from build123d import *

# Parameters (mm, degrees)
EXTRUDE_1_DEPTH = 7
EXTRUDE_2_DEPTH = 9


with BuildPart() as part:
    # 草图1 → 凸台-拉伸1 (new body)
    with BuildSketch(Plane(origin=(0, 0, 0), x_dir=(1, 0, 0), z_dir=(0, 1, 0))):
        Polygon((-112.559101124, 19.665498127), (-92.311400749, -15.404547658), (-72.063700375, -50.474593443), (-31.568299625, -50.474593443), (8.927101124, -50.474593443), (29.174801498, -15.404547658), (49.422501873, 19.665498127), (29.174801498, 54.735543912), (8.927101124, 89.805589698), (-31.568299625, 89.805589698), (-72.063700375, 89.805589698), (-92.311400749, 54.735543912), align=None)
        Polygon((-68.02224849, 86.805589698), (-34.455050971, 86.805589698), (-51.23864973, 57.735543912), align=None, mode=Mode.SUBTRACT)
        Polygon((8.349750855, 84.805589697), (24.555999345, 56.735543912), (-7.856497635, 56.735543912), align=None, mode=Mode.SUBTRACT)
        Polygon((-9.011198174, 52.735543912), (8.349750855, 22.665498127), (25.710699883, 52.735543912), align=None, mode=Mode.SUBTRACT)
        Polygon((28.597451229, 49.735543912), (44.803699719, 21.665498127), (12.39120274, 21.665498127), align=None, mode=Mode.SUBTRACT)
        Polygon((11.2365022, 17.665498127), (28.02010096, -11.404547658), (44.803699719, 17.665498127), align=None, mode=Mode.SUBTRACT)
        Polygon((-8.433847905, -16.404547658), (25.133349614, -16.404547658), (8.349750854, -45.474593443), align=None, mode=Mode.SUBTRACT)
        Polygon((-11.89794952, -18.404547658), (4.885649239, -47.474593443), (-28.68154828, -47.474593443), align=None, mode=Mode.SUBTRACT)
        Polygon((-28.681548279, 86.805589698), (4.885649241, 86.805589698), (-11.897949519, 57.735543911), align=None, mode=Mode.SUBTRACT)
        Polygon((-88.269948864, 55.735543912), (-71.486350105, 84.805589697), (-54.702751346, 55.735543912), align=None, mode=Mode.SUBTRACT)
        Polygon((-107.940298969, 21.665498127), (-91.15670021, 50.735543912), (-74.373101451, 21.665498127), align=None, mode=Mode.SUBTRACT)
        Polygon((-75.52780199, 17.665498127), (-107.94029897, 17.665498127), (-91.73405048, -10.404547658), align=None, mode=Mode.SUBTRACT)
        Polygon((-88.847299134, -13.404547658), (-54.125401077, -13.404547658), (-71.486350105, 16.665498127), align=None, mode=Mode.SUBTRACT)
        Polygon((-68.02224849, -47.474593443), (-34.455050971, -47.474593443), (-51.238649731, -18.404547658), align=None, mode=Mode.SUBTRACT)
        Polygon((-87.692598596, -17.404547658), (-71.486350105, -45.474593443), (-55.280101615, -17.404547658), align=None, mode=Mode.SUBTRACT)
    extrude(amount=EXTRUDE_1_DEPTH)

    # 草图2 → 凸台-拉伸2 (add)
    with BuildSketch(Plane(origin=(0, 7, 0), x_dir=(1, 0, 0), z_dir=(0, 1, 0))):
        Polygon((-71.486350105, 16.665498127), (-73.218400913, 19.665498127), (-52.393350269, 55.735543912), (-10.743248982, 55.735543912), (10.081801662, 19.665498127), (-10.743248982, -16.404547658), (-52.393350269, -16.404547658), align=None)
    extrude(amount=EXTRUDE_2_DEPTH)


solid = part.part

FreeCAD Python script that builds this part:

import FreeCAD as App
import Part
import Sketcher

V = App.Vector
Q = App.Units.Quantity

doc = App.newDocument("Part")
body = doc.addObject("PartDesign::Body", "Body")

# Sketch on XZ plane
sketch1 = doc.addObject("Sketcher::SketchObject", "Sketch")
body.addObject(sketch1)
sketch1.AttachmentSupport = (doc.XZ_Plane, [""])
sketch1.MapMode = "FlatFace"
sketch1.addGeometry([
    Part.LineSegment(V(-112.559101, -19.665498, 0), V(-92.311401, 15.404548, 0)),  # 0
    Part.LineSegment(V(-92.311401, 15.404548, 0), V(-72.0637, 50.474593, 0)),  # 1
    Part.LineSegment(V(-72.0637, 50.474593, 0), V(8.927101, 50.474593, 0)),  # 2
    Part.LineSegment(V(8.927101, 50.474593, 0), V(29.174801, 15.404548, 0)),  # 3
    Part.LineSegment(V(29.174801, 15.404548, 0), V(49.422502, -19.665498, 0)),  # 4
    Part.LineSegment(V(49.422502, -19.665498, 0), V(29.174801, -54.735544, 0)),  # 5
    Part.LineSegment(V(29.174801, -54.735544, 0), V(8.927101, -89.80559, 0)),  # 6
    Part.LineSegment(V(8.927101, -89.80559, 0), V(-72.0637, -89.80559, 0)),  # 7
    Part.LineSegment(V(-72.0637, -89.80559, 0), V(-92.311401, -54.735544, 0)),  # 8
    Part.LineSegment(V(-92.311401, -54.735544, 0), V(-112.559101, -19.665498, 0)),  # 9
    Part.LineSegment(V(-71.48635, 45.474593, 0), V(-87.692599, 17.404548, 0)),  # 10
    Part.LineSegment(V(-87.692599, 17.404548, 0), V(-55.280102, 17.404548, 0)),  # 11
    Part.LineSegment(V(-55.280102, 17.404548, 0), V(-71.48635, 45.474593, 0)),  # 12
    Part.LineSegment(V(-34.455051, 47.474593, 0), V(-68.022248, 47.474593, 0)),  # 13
    Part.LineSegment(V(-68.022248, 47.474593, 0), V(-51.23865, 18.404548, 0)),  # 14
    Part.LineSegment(V(-51.23865, 18.404548, 0), V(-34.455051, 47.474593, 0)),  # 15
    Part.LineSegment(V(-54.125401, 13.404548, 0), V(-88.847299, 13.404548, 0)),  # 16
    Part.LineSegment(V(-88.847299, 13.404548, 0), V(-71.48635, -16.665498, 0)),  # 17
    Part.LineSegment(V(-71.48635, -16.665498, 0), V(-54.125401, 13.404548, 0)),  # 18
    Part.LineSegment(V(-107.940299, -17.665498, 0), V(-75.527802, -17.665498, 0)),  # 19
    Part.LineSegment(V(-75.527802, -17.665498, 0), V(-91.73405, 10.404548, 0)),  # 20
    Part.LineSegment(V(-91.73405, 10.404548, 0), V(-107.940299, -17.665498, 0)),  # 21
    Part.LineSegment(V(-28.681548, 47.474593, 0), V(-11.89795, 18.404548, 0)),  # 22
    Part.LineSegment(V(-11.89795, 18.404548, 0), V(4.885649, 47.474593, 0)),  # 23
    Part.LineSegment(V(4.885649, 47.474593, 0), V(-28.681548, 47.474593, 0)),  # 24
    Part.LineSegment(V(8.349751, 45.474593, 0), V(-8.433848, 16.404548, 0)),  # 25
    Part.LineSegment(V(-8.433848, 16.404548, 0), V(25.13335, 16.404548, 0)),  # 26
    Part.LineSegment(V(25.13335, 16.404548, 0), V(8.349751, 45.474593, 0)),  # 27
    Part.LineSegment(V(28.020101, 11.404548, 0), V(11.236502, -17.665498, 0)),  # 28
    Part.LineSegment(V(11.236502, -17.665498, 0), V(44.8037, -17.665498, 0)),  # 29
    Part.LineSegment(V(44.8037, -17.665498, 0), V(28.020101, 11.404548, 0)),  # 30
    Part.LineSegment(V(-74.373101, -21.665498, 0), V(-107.940299, -21.665498, 0)),  # 31
    Part.LineSegment(V(-107.940299, -21.665498, 0), V(-91.1567, -50.735544, 0)),  # 32
    Part.LineSegment(V(-91.1567, -50.735544, 0), V(-74.373101, -21.665498, 0)),  # 33
    Part.LineSegment(V(-54.702751, -55.735544, 0), V(-88.269949, -55.735544, 0)),  # 34
    Part.LineSegment(V(-88.269949, -55.735544, 0), V(-71.48635, -84.80559, 0)),  # 35
    Part.LineSegment(V(-71.48635, -84.80559, 0), V(-54.702751, -55.735544, 0)),  # 36
    Part.LineSegment(V(-51.23865, -57.735544, 0), V(-68.022248, -86.80559, 0)),  # 37
    Part.LineSegment(V(-68.022248, -86.80559, 0), V(-34.455051, -86.80559, 0)),  # 38
    Part.LineSegment(V(-34.455051, -86.80559, 0), V(-51.23865, -57.735544, 0)),  # 39
    Part.LineSegment(V(12.391203, -21.665498, 0), V(28.597451, -49.735544, 0)),  # 40
    Part.LineSegment(V(28.597451, -49.735544, 0), V(44.8037, -21.665498, 0)),  # 41
    Part.LineSegment(V(44.8037, -21.665498, 0), V(12.391203, -21.665498, 0)),  # 42
    Part.LineSegment(V(8.349751, -22.665498, 0), V(-9.011198, -52.735544, 0)),  # 43
    Part.LineSegment(V(-9.011198, -52.735544, 0), V(25.7107, -52.735544, 0)),  # 44
    Part.LineSegment(V(25.7107, -52.735544, 0), V(8.349751, -22.665498, 0)),  # 45
    Part.LineSegment(V(-11.89795, -57.735544, 0), V(-28.681548, -86.80559, 0)),  # 46
    Part.LineSegment(V(-28.681548, -86.80559, 0), V(4.885649, -86.80559, 0)),  # 47
    Part.LineSegment(V(4.885649, -86.80559, 0), V(-11.89795, -57.735544, 0)),  # 48
    Part.LineSegment(V(-7.856498, -56.735544, 0), V(8.349751, -84.80559, 0)),  # 49
    Part.LineSegment(V(8.349751, -84.80559, 0), V(24.555999, -56.735544, 0)),  # 50
    Part.LineSegment(V(24.555999, -56.735544, 0), V(-7.856498, -56.735544, 0)),  # 51
], False)
sketch1.addConstraint([
    Sketcher.Constraint("Coincident", 0, 2, 1, 1),
    Sketcher.Constraint("Coincident", 1, 2, 2, 1),
    Sketcher.Constraint("Coincident", 2, 2, 3, 1),
    Sketcher.Constraint("Coincident", 3, 2, 4, 1),
    Sketcher.Constraint("Coincident", 4, 2, 5, 1),
    Sketcher.Constraint("Coincident", 5, 2, 6, 1),
    Sketcher.Constraint("Coincident", 6, 2, 7, 1),
    Sketcher.Constraint("Coincident", 7, 2, 8, 1),
    Sketcher.Constraint("Coincident", 8, 2, 9, 1),
    Sketcher.Constraint("Coincident", 9, 2, 0, 1),
    Sketcher.Constraint("Coincident", 10, 2, 11, 1),
    Sketcher.Constraint("Coincident", 11, 2, 12, 1),
    Sketcher.Constraint("Coincident", 12, 2, 10, 1),
    Sketcher.Constraint("Coincident", 13, 2, 14, 1),
    Sketcher.Constraint("Coincident", 14, 2, 15, 1),
    Sketcher.Constraint("Coincident", 15, 2, 13, 1),
    Sketcher.Constraint("Coincident", 16, 2, 17, 1),
    Sketcher.Constraint("Coincident", 17, 2, 18, 1),
    Sketcher.Constraint("Coincident", 18, 2, 16, 1),
    Sketcher.Constraint("Coincident", 19, 2, 20, 1),
    Sketcher.Constraint("Coincident", 20, 2, 21, 1),
    Sketcher.Constraint("Coincident", 21, 2, 19, 1),
    Sketcher.Constraint("Coincident", 22, 2, 23, 1),
    Sketcher.Constraint("Coincident", 23, 2, 24, 1),
    Sketcher.Constraint("Coincident", 24, 2, 22, 1),
    Sketcher.Constraint("Coincident", 25, 2, 26, 1),
    Sketcher.Constraint("Coincident", 26, 2, 27, 1),
    Sketcher.Constraint("Coincident", 27, 2, 25, 1),
    Sketcher.Constraint("Coincident", 28, 2, 29, 1),
    Sketcher.Constraint("Coincident", 29, 2, 30, 1),
    Sketcher.Constraint("Coincident", 30, 2, 28, 1),
    Sketcher.Constraint("Coincident", 31, 2, 32, 1),
    Sketcher.Constraint("Coincident", 32, 2, 33, 1),
    Sketcher.Constraint("Coincident", 33, 2, 31, 1),
    Sketcher.Constraint("Coincident", 34, 2, 35, 1),
    Sketcher.Constraint("Coincident", 35, 2, 36, 1),
    Sketcher.Constraint("Coincident", 36, 2, 34, 1),
    Sketcher.Constraint("Coincident", 37, 2, 38, 1),
    Sketcher.Constraint("Coincident", 38, 2, 39, 1),
    Sketcher.Constraint("Coincident", 39, 2, 37, 1),
    Sketcher.Constraint("Coincident", 40, 2, 41, 1),
    Sketcher.Constraint("Coincident", 41, 2, 42, 1),
    Sketcher.Constraint("Coincident", 42, 2, 40, 1),
    Sketcher.Constraint("Coincident", 43, 2, 44, 1),
    Sketcher.Constraint("Coincident", 44, 2, 45, 1),
    Sketcher.Constraint("Coincident", 45, 2, 43, 1),
    Sketcher.Constraint("Coincident", 46, 2, 47, 1),
    Sketcher.Constraint("Coincident", 47, 2, 48, 1),
    Sketcher.Constraint("Coincident", 48, 2, 46, 1),
    Sketcher.Constraint("Coincident", 49, 2, 50, 1),
    Sketcher.Constraint("Coincident", 50, 2, 51, 1),
    Sketcher.Constraint("Coincident", 51, 2, 49, 1),
    Sketcher.Constraint("Horizontal", 2),
    Sketcher.Constraint("Horizontal", 7),
    Sketcher.Constraint("Horizontal", 11),
    Sketcher.Constraint("Horizontal", 13),
    Sketcher.Constraint("Horizontal", 16),
    Sketcher.Constraint("Horizontal", 19),
    Sketcher.Constraint("Horizontal", 24),
    Sketcher.Constraint("Horizontal", 26),
    Sketcher.Constraint("Horizontal", 29),
    Sketcher.Constraint("Horizontal", 31),
    Sketcher.Constraint("Horizontal", 34),
    Sketcher.Constraint("Horizontal", 38),
    Sketcher.Constraint("Horizontal", 42),
    Sketcher.Constraint("Horizontal", 44),
    Sketcher.Constraint("Horizontal", 47),
    Sketcher.Constraint("Horizontal", 51),
    Sketcher.Constraint("Parallel", 0, 1),
    Sketcher.Constraint("Parallel", 3, 4),
    Sketcher.Constraint("Parallel", 1, 5),
    Sketcher.Constraint("Parallel", 5, 6),
    Sketcher.Constraint("Parallel", 4, 8),
    Sketcher.Constraint("Parallel", 8, 9),
    Sketcher.Constraint("Parallel", 6, 10),
    Sketcher.Constraint("Parallel", 9, 12),
    Sketcher.Constraint("Parallel", 12, 14),
    Sketcher.Constraint("Parallel", 10, 15),
    Sketcher.Constraint("Parallel", 14, 17),
    Sketcher.Constraint("Parallel", 15, 18),
    Sketcher.Constraint("Parallel", 17, 20),
    Sketcher.Constraint("Parallel", 18, 21),
    Sketcher.Constraint("Parallel", 20, 22),
    Sketcher.Constraint("Parallel", 21, 23),
    Sketcher.Constraint("Parallel", 23, 25),
    Sketcher.Constraint("Parallel", 22, 27),
    Sketcher.Constraint("Parallel", 25, 28),
    Sketcher.Constraint("Parallel", 27, 30),
    Sketcher.Constraint("Parallel", 30, 32),
    Sketcher.Constraint("Parallel", 28, 33),
    Sketcher.Constraint("Parallel", 32, 35),
    Sketcher.Constraint("Parallel", 33, 36),
    Sketcher.Constraint("Parallel", 36, 37),
    Sketcher.Constraint("Parallel", 35, 39),
    Sketcher.Constraint("Parallel", 39, 40),
    Sketcher.Constraint("Parallel", 37, 41),
    Sketcher.Constraint("Parallel", 41, 43),
    Sketcher.Constraint("Parallel", 40, 45),
    Sketcher.Constraint("Parallel", 43, 46),
    Sketcher.Constraint("Parallel", 45, 48),
    Sketcher.Constraint("Parallel", 48, 49),
    Sketcher.Constraint("Parallel", 46, 50),
    Sketcher.Constraint("Horizontal", 0, 2, 3, 2),
    Sketcher.Constraint("Horizontal", 5, 2, 8, 2),
    Sketcher.Constraint("Horizontal", 4, 2, 9, 2),
    Sketcher.Constraint("Horizontal", 14, 2, 22, 2),
    Sketcher.Constraint("Horizontal", 15, 2, 23, 2),
    Sketcher.Constraint("Horizontal", 12, 2, 27, 2),
    Sketcher.Constraint("Horizontal", 21, 2, 28, 2),
    Sketcher.Constraint("Horizontal", 33, 2, 41, 2),
    Sketcher.Constraint("Horizontal", 38, 2, 46, 2),
    Sketcher.Constraint("Horizontal", 39, 2, 48, 2),
    Sketcher.Constraint("Horizontal", 35, 2, 49, 2),
    Sketcher.Constraint("Vertical", 3, 2, 5, 2),
    Sketcher.Constraint("Vertical", 2, 2, 6, 2),
    Sketcher.Constraint("Vertical", 1, 2, 7, 2),
    Sketcher.Constraint("Vertical", 12, 2, 17, 2),
    Sketcher.Constraint("Vertical", 21, 2, 31, 2),
    Sketcher.Constraint("Vertical", 17, 2, 35, 2),
    Sketcher.Constraint("Vertical", 13, 2, 37, 2),
    Sketcher.Constraint("Vertical", 15, 2, 38, 2),
    Sketcher.Constraint("Vertical", 29, 2, 41, 2),
    Sketcher.Constraint("Vertical", 27, 2, 45, 2),
    Sketcher.Constraint("Vertical", 24, 2, 46, 2),
    Sketcher.Constraint("Vertical", 45, 2, 49, 2),
    Sketcher.Constraint("Equal", 11, 19),
    Sketcher.Constraint("Equal", 24, 26),
    Sketcher.Constraint("Equal", 26, 29),
    Sketcher.Constraint("Equal", 29, 31),
    Sketcher.Constraint("Equal", 31, 34),
    Sketcher.Constraint("Equal", 19, 42),
    Sketcher.Constraint("Equal", 16, 44),
    Sketcher.Constraint("Equal", 42, 51),
    Sketcher.Constraint("Equal", 0, 1),
    Sketcher.Constraint("Angle", 0, Q("60 deg")),
    Sketcher.Constraint("DistanceY", 0, 2, 10, 2, Q("2 mm")),
    Sketcher.Constraint("DistanceY", 12, 2, 1, 2, Q("5 mm")),
    Sketcher.Constraint("DistanceY", 12, 2, 13, 2, Q("2 mm")),
    Sketcher.Constraint("DistanceY", 11, 2, 14, 2, Q("1 mm")),
    Sketcher.Constraint("DistanceY", 16, 2, 0, 2, Q("2 mm")),
    Sketcher.Constraint("DistanceY", 19, 2, 17, 2, Q("1 mm")),
    Sketcher.Constraint("DistanceY", 9, 2, 19, 2, Q("2 mm")),
    Sketcher.Constraint("DistanceY", 31, 2, 21, 2, Q("4 mm")),
    Sketcher.Constraint("DistanceY", 34, 2, 8, 2, Q("1 mm")),
    Sketcher.Constraint("DistanceY", 37, 2, 35, 2, Q("2 mm")),
    Sketcher.Constraint("DistanceY", 43, 2, 40, 2, Q("3 mm")),
    Sketcher.Constraint("DistanceX", 2, 1, 2, 2, Q("80.990801 mm")),
    Sketcher.Constraint("DistanceX", 16, 2, 16, 1, Q("34.721898 mm")),
    Sketcher.Constraint("DistanceX", -1, 1, 50, 2, Q("24.555999 mm")),
    Sketcher.Constraint("DistanceX", 9, 2, 11, 2, Q("57.279 mm")),
    Sketcher.Constraint("DistanceX", 21, 2, 16, 2, Q("19.093 mm")),
    Sketcher.Constraint("DistanceX", 28, 2, 4, 2, Q("38.186 mm")),
    Sketcher.Constraint("DistanceX", 43, 2, 5, 2, Q("38.186 mm")),
    Sketcher.Constraint("DistanceY", 4, 2, -1, 1, Q("19.665498 mm")),
    Sketcher.Constraint("DistanceX", 12, 2, 13, 2, Q("3.464102 mm")),
    Sketcher.Constraint("DistanceX", 15, 2, 22, 2, Q("22.557101 mm")),
])
pad1 = doc.addObject("PartDesign::Pad", "Pad")
body.addObject(pad1)
pad1.Profile = sketch1
pad1.Length = 7
pad1.Reversed = True

# Sketch on XZ plane
sketch2 = doc.addObject("Sketcher::SketchObject", "Sketch001")
body.addObject(sketch2)
sketch2.AttachmentSupport = (doc.XZ_Plane, [""])
sketch2.MapMode = "FlatFace"
sketch2.AttachmentOffset = App.Placement(V(0, 0, -7), App.Rotation())
sketch2.addGeometry([
    Part.LineSegment(V(-73.218401, -19.665498, 0), V(-71.48635, -16.665498, 0)),  # 0
    Part.LineSegment(V(-71.48635, -16.665498, 0), V(-52.39335, 16.404548, 0)),  # 1
    Part.LineSegment(V(-52.39335, 16.404548, 0), V(-10.743249, 16.404548, 0)),  # 2
    Part.LineSegment(V(-10.743249, 16.404548, 0), V(10.081802, -19.665498, 0)),  # 3
    Part.LineSegment(V(10.081802, -19.665498, 0), V(-10.743249, -55.735544, 0)),  # 4
    Part.LineSegment(V(-10.743249, -55.735544, 0), V(-52.39335, -55.735544, 0)),  # 5
    Part.LineSegment(V(-52.39335, -55.735544, 0), V(-73.218401, -19.665498, 0)),  # 6
], False)
sketch2.addConstraint([
    Sketcher.Constraint("Coincident", 0, 2, 1, 1),
    Sketcher.Constraint("Coincident", 1, 2, 2, 1),
    Sketcher.Constraint("Coincident", 2, 2, 3, 1),
    Sketcher.Constraint("Coincident", 3, 2, 4, 1),
    Sketcher.Constraint("Coincident", 4, 2, 5, 1),
    Sketcher.Constraint("Coincident", 5, 2, 6, 1),
    Sketcher.Constraint("Coincident", 6, 2, 0, 1),
    Sketcher.Constraint("Horizontal", 2),
    Sketcher.Constraint("Horizontal", 5),
    Sketcher.Constraint("Parallel", 0, 1),
    Sketcher.Constraint("Parallel", 1, 4),
    Sketcher.Constraint("Parallel", 3, 6),
    Sketcher.Constraint("Horizontal", 3, 2, 6, 2),
    Sketcher.Constraint("Vertical", 2, 2, 4, 2),
    Sketcher.Constraint("Vertical", 1, 2, 5, 2),
    Sketcher.Constraint("Angle", 0, Q("60 deg")),
    Sketcher.Constraint("DistanceY", 3, 2, 0, 2, Q("3 mm")),
    Sketcher.Constraint("Distance", 1, Q("38.186 mm")),
    Sketcher.Constraint("DistanceX", 2, 1, 2, 2, Q("41.650101 mm")),
    Sketcher.Constraint("DistanceY", 0, 2, -1, 1, Q("16.665498 mm")),
    Sketcher.Constraint("DistanceX", -1, 1, 3, 2, Q("10.081802 mm")),
])
pad2 = doc.addObject("PartDesign::Pad", "Pad001")
body.addObject(pad2)
pad2.Profile = sketch2
pad2.Length = 9
pad2.Reversed = True

doc.recompute()
